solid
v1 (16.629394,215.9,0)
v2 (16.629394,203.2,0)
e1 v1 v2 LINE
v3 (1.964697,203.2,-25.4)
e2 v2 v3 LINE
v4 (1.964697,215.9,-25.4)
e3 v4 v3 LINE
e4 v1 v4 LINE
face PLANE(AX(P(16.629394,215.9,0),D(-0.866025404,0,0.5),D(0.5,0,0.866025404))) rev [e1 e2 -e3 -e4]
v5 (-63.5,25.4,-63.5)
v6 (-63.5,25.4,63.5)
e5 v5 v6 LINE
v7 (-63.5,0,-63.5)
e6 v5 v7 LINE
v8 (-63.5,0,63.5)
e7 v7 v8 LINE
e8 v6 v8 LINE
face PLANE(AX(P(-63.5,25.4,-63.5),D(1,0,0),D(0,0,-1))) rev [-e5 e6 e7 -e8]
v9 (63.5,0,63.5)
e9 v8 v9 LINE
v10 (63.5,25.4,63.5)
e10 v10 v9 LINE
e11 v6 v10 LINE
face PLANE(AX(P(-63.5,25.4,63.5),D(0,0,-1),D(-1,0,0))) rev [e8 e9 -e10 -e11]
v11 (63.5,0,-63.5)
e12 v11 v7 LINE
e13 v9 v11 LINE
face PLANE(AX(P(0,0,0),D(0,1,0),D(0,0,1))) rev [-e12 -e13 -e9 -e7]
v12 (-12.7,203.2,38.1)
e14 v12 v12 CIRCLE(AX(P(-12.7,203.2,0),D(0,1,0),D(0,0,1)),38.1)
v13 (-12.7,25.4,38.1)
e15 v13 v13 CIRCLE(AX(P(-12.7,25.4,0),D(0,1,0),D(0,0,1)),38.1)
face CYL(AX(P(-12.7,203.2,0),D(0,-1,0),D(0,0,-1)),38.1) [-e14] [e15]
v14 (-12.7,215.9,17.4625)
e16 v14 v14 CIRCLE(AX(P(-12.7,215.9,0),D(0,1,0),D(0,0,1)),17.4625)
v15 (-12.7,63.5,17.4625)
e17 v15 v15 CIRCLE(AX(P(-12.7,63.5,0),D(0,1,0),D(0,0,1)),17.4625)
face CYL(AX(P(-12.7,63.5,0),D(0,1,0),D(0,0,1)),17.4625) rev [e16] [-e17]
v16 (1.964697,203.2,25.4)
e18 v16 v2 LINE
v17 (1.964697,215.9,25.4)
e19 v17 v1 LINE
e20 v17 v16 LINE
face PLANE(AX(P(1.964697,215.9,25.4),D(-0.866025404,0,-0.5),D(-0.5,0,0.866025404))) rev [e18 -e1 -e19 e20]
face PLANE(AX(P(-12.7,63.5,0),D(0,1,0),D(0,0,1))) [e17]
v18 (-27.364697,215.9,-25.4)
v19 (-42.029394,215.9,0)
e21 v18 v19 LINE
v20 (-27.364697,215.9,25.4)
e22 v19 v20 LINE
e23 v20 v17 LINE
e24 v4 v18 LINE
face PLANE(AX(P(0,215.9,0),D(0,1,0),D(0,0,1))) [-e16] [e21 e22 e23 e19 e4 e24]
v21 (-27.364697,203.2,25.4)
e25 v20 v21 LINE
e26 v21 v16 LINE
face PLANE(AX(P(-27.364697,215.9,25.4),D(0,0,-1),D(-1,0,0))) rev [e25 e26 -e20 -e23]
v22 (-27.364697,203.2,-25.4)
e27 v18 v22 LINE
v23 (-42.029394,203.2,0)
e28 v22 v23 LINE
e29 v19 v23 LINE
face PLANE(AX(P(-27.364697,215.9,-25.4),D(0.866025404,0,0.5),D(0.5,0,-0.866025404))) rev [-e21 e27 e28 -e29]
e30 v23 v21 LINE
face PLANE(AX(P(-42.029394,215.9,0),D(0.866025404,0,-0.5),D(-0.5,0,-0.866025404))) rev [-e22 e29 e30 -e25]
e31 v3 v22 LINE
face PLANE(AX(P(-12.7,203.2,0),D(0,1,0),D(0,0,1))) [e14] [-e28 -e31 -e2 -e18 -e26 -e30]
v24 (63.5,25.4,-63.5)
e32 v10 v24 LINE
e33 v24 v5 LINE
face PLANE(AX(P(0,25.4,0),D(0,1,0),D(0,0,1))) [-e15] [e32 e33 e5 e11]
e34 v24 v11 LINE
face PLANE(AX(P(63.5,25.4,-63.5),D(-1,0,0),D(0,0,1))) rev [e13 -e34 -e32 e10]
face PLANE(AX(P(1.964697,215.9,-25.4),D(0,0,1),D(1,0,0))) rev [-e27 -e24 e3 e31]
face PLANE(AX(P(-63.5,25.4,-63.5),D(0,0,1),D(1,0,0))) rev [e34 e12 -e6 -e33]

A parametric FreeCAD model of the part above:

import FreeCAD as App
import Part
import Sketcher
Q = App.Units.Quantity


def add_polygon(sketch, points):
    """Adds a closed chain of lines whose ends are joined by coincident constraints."""
    first, n = sketch.GeometryCount, len(points)
    for a, b in zip(points, points[1:] + points[:1]):
        sketch.addGeometry(Part.LineSegment(App.Vector(*a, 0), App.Vector(*b, 0)), False)
    for i in range(n):
        sketch.addConstraint(Sketcher.Constraint("Coincident", first + i, 2, first + (i + 1) % n, 1))

doc = App.newDocument("Part")
params = doc.addObject("Spreadsheet::Sheet", "Params")
for row, (alias, value) in enumerate([
    ("sketch1_width", "5 in"),
    ("pad1_length", "1 in"),
    ("sketch2_diameter", "3 in"),
    ("pad2_length", "7 in"),
    ("pad3_length", "0.5 in"),
    ("sketch4_diameter", "1.375 in"),
    ("pocket1_length", "6 in"),
], start=1):
    params.set(f"A{row}", alias)
    params.set(f"B{row}", "=" + value)
    params.setAlias(f"B{row}", alias)

body = doc.addObject("PartDesign::Body", "Body")

sketch1 = doc.addObject("Sketcher::SketchObject", "Sketch")
body.addObject(sketch1)
sketch1.AttachmentSupport = (doc.XZ_Plane, [""])
sketch1.MapMode = "FlatFace"
add_polygon(sketch1, [(-63.5, -63.5), (-63.5, 63.5), (63.5, 63.5), (63.5, -63.5)])
sketch1.addConstraint([
    Sketcher.Constraint("Vertical", 0),
    Sketcher.Constraint("Horizontal", 1),
    Sketcher.Constraint("Vertical", 2),
    Sketcher.Constraint("Horizontal", 3),
    Sketcher.Constraint("Symmetric", 0, 2, 2, 2, -1, 1),
    Sketcher.Constraint("Equal", 3, 0),
    Sketcher.Constraint("DistanceX", 1, 1, 1, 2, Q("5 in")),
])
sketch1.setExpression("Constraints[10]", "Params.sketch1_width")
pad1 = doc.addObject("PartDesign::Pad", "Pad")
body.addObject(pad1)
pad1.Profile = sketch1
pad1.setExpression("Length", "Params.pad1_length")
pad1.Reversed = True

sketch2 = doc.addObject("Sketcher::SketchObject", "Sketch001")
body.addObject(sketch2)
sketch2.AttachmentSupport = (doc.XZ_Plane, [""])
sketch2.MapMode = "FlatFace"
sketch2.AttachmentOffset = App.Placement(App.Vector(0, 0, -1 * 25.4), App.Rotation())
sketch2.addGeometry(Part.Circle(App.Vector(-12.7, 0, 0), App.Vector(0, 0, 1), 38.1), False)
sketch2.addConstraint([
    Sketcher.Constraint("PointOnObject", 0, 3, -1),
    Sketcher.Constraint("Diameter", 0, Q("3 in")),
    Sketcher.Constraint("DistanceX", 0, 3, -1, 1, Q("0.5 in")),
])
sketch2.setExpression("Constraints[1]", "Params.sketch2_diameter")
pad2 = doc.addObject("PartDesign::Pad", "Pad001")
body.addObject(pad2)
pad2.Profile = sketch2
pad2.setExpression("Length", "Params.pad2_length")
pad2.Reversed = True

sketch3 = doc.addObject("Sketcher::SketchObject", "Sketch002")
body.addObject(sketch3)
sketch3.AttachmentSupport = (doc.XZ_Plane, [""])
sketch3.MapMode = "FlatFace"
sketch3.AttachmentOffset = App.Placement(App.Vector(0, 0, -8 * 25.4), App.Rotation())
add_polygon(sketch3, [(16.629394, 0), (1.964697, -25.4), (-27.364697, -25.4), (-42.029394, 0), (-27.364697, 25.4), (1.964697, 25.4)])
sketch3.addConstraint([
    Sketcher.Constraint("Horizontal", 1),
    Sketcher.Constraint("Horizontal", 4),
    Sketcher.Constraint("Symmetric", 1, 2, 3, 2, -1),
    Sketcher.Constraint("PointOnObject", 2, 2, -1),
    Sketcher.Constraint("PointOnObject", 5, 2, -1),
    Sketcher.Constraint("Parallel", 0, 3),
    Sketcher.Constraint("Parallel", 2, 5),
    Sketcher.Constraint("DistanceY", 0, 2, -1, 1, Q("1 in")),
    Sketcher.Constraint("Angle", 0, Q("-120 deg")),
    Sketcher.Constraint("DistanceX", 1, 2, 1, 1, Q("29.329394 mm")),
    Sketcher.Constraint("DistanceX", -1, 1, 0, 2, Q("1.964697 mm")),
])
pad3 = doc.addObject("PartDesign::Pad", "Pad002")
body.addObject(pad3)
pad3.Profile = sketch3
pad3.setExpression("Length", "Params.pad3_length")
pad3.Reversed = True

sketch4 = doc.addObject("Sketcher::SketchObject", "Sketch003")
body.addObject(sketch4)
sketch4.AttachmentSupport = (doc.XZ_Plane, [""])
sketch4.MapMode = "FlatFace"
sketch4.AttachmentOffset = App.Placement(App.Vector(0, 0, -8.5 * 25.4), App.Rotation())
sketch4.addGeometry(Part.Circle(App.Vector(-12.7, 0, 0), App.Vector(0, 0, 1), 17.4625), False)
sketch4.addConstraint([
    Sketcher.Constraint("PointOnObject", 0, 3, -1),
    Sketcher.Constraint("Diameter", 0, Q("1.375 in")),
    Sketcher.Constraint("DistanceX", 0, 3, -1, 1, Q("0.5 in")),
])
sketch4.setExpression("Constraints[1]", "Params.sketch4_diameter")
pocket1 = doc.addObject("PartDesign::Pocket", "Pocket")
body.addObject(pocket1)
pocket1.Profile = sketch4
pocket1.setExpression("Length", "Params.pocket1_length")
pocket1.Reversed = True

doc.recompute()
